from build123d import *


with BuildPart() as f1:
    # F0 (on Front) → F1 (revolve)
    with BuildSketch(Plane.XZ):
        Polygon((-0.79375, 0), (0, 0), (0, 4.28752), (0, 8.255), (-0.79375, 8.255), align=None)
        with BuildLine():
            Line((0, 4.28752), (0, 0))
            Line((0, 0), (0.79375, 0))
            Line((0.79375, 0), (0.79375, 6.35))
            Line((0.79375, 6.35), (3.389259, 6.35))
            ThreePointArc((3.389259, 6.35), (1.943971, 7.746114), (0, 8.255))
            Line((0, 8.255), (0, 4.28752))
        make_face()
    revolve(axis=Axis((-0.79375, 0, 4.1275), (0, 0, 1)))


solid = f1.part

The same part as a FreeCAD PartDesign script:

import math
import FreeCAD as App
import Part
import Sketcher
Q = App.Units.Quantity

doc = App.newDocument("Part")
params = doc.addObject("Spreadsheet::Sheet", "Params")
for row, (alias, value) in enumerate([
    ("sketch1_height", "0.25 in"),
    ("sketch1_width", "0.0625 in"),
    ("sketch1_height2", "0.325 in"),
    ("revolution_angle", "360 deg"),
], start=1):
    params.set(f"A{row}", alias)
    params.set(f"B{row}", "=" + value)
    params.setAlias(f"B{row}", alias)

body = doc.addObject("PartDesign::Body", "Body")

sketch1 = body.newObject("Sketcher::SketchObject", "Sketch")
sketch1.AttachmentSupport = (doc.getObject("XZ_Plane"), [""])
sketch1.MapMode = "FlatFace"
sketch1.addGeometry(Part.LineSegment(App.Vector(-0.8, 0, 0), App.Vector(0.8, 0, 0)), False)
sketch1.addGeometry(Part.LineSegment(App.Vector(0.8, 0, 0), App.Vector(0.8, 6.3, 0)), False)
sketch1.addGeometry(Part.LineSegment(App.Vector(0.8, 6.3, 0), App.Vector(3.4, 6.3, 0)), False)
sketch1.addGeometry(Part.ArcOfCircle(Part.Circle(App.Vector(0, 4.3, 0), App.Vector(0, 0, 1), 4), math.radians(31), math.radians(90)), False)
sketch1.addGeometry(Part.LineSegment(App.Vector(0, 8.3, 0), App.Vector(-0.8, 8.3, 0)), False)
sketch1.addGeometry(Part.LineSegment(App.Vector(-0.8, 8.3, 0), App.Vector(-0.8, 0, 0)), False)
sketch1.addGeometry(Part.LineSegment(App.Vector(-0.8, 0, 0), App.Vector(-0.8, 8.3, 0)), True)
sketch1.addConstraint(Sketcher.Constraint("Coincident", 0, 2, 1, 1))
sketch1.addConstraint(Sketcher.Constraint("Coincident", 1, 2, 2, 1))
sketch1.addConstraint(Sketcher.Constraint("Coincident", 2, 2, 3, 1))
sketch1.addConstraint(Sketcher.Constraint("Tangent", 3, 2, 4, 1))
sketch1.addConstraint(Sketcher.Constraint("Coincident", 4, 2, 5, 1))
sketch1.addConstraint(Sketcher.Constraint("Coincident", 5, 2, 0, 1))
sketch1.addConstraint(Sketcher.Constraint("Horizontal", 0))
sketch1.addConstraint(Sketcher.Constraint("Vertical", 1))
sketch1.addConstraint(Sketcher.Constraint("Horizontal", 2))
sketch1.addConstraint(Sketcher.Constraint("Horizontal", 4))
sketch1.addConstraint(Sketcher.Constraint("Vertical", 5))
sketch1.addConstraint(Sketcher.Constraint("Vertical", 6))
sketch1.addConstraint(Sketcher.Constraint("Coincident", 6, 1, 5, 2))
sketch1.addConstraint(Sketcher.Constraint("Symmetric", 0, 2, 5, 2, -1, 1))
sketch1.addConstraint(Sketcher.Constraint("PointOnObject", 3, 3, -2))
sketch1.addConstraint(Sketcher.Constraint("Horizontal", 3, 2, 6, 2))
sketch1.addConstraint(Sketcher.Constraint("DistanceY", 1, 1, 1, 2, Q("0.25 in")))
sketch1.addConstraint(Sketcher.Constraint("Radius", 3, Q("0.1562001 in")))
sketch1.addConstraint(Sketcher.Constraint("DistanceX", 0, 1, 0, 2, Q("0.0625 in")))
sketch1.addConstraint(Sketcher.Constraint("DistanceY", 5, 2, 5, 1, Q("0.325 in")))
sketch1.setExpression("Constraints[16]", "Params.sketch1_height")
sketch1.setExpression("Constraints[18]", "Params.sketch1_width")
sketch1.setExpression("Constraints[19]", "Params.sketch1_height2")
revolution = body.newObject("PartDesign::Revolution", "Revolution")
revolution.Profile = sketch1
revolution.ReferenceAxis = (sketch1, ["Axis0"])
revolution.setExpression("Angle", "Params.revolution_angle")

doc.recompute()
